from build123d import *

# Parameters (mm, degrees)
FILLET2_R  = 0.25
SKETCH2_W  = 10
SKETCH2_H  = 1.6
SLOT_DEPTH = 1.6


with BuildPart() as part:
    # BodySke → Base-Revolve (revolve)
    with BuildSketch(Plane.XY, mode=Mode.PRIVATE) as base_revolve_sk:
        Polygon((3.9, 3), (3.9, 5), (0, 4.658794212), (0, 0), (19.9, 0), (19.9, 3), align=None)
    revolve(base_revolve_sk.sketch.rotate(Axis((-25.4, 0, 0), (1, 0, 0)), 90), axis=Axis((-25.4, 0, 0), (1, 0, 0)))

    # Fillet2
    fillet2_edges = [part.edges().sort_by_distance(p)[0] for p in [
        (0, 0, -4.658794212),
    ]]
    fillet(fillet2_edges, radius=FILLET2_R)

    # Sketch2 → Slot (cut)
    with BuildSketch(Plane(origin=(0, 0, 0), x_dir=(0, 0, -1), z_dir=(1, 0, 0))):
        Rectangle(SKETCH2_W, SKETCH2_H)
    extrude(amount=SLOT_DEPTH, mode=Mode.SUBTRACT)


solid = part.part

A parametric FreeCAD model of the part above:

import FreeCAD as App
import Part
import Sketcher
from FreeCAD import Vector
Q = App.Units.Quantity


def edges_at(feature, points):
    """Names of the edges that pass closest to the given points."""
    edges = feature.Shape.Edges
    near = lambda p: min(range(len(edges)), key=lambda i: edges[i].distToShape(Part.Vertex(*p))[0])
    return sorted({f"Edge{near(p) + 1}" for p in points})


def add_polygon(sketch, points):
    """Adds a closed chain of lines whose ends are joined by coincident constraints."""
    first, n = sketch.GeometryCount, len(points)
    for a, b in zip(points, points[1:] + points[:1]):
        sketch.addGeometry(Part.LineSegment(App.Vector(*a, 0), App.Vector(*b, 0)), False)
    for i in range(n):
        sketch.addConstraint(Sketcher.Constraint("Coincident", first + i, 2, first + (i + 1) % n, 1))

doc = App.newDocument("Part")
params = doc.addObject("Spreadsheet::Sheet", "Params")
for row, (alias, value) in enumerate([
    ("sketch1_width", "16 mm"),
    ("sketch1_height", "2 mm"),
    ("sketch1_height2", "3 mm"),
    ("sketch1_width2", "19.9 mm"),
    ("revolution_angle", "360 deg"),
    ("fillet_radius", "0.25 mm"),
    ("sketch2_height", "10 mm"),
    ("sketch2_width", "1.6 mm"),
    ("pocket1_length", "1.6 mm"),
], start=1):
    params.set(f"A{row}", alias)
    params.set(f"B{row}", "=" + value)
    params.setAlias(f"B{row}", alias)

body = doc.addObject("PartDesign::Body", "Body")

sketch1 = body.newObject("Sketcher::SketchObject", "Sketch")
sketch1.AttachmentSupport = (doc.getObject("XY_Plane"), [""])
sketch1.MapMode = "FlatFace"
add_polygon(sketch1, [(3.9, 3), (3.9, 5), (0, 4.7), (0, 0), (19.9, 0), (19.9, 3)])
sketch1.addConstraint([
    Sketcher.Constraint("Vertical", 0),
    Sketcher.Constraint("Vertical", 2),
    Sketcher.Constraint("Horizontal", 3),
    Sketcher.Constraint("Vertical", 4),
    Sketcher.Constraint("Horizontal", 5),
    Sketcher.Constraint("Coincident", 2, 2, -1, 1),
    Sketcher.Constraint("DistanceX", 5, 2, 5, 1, 16.0),
    Sketcher.Constraint("DistanceY", 0, 1, 0, 2, 2.0),
    Sketcher.Constraint("DistanceY", 4, 1, 4, 2, 3.0),
    Sketcher.Constraint("Angle", 1, Q("-175 deg")),
    Sketcher.Constraint("DistanceX", 3, 1, 3, 2, 19.9),
])
sketch1.setExpression("Constraints[12]", "Params.sketch1_width")
sketch1.setExpression("Constraints[13]", "Params.sketch1_height")
sketch1.setExpression("Constraints[14]", "Params.sketch1_height2")
sketch1.setExpression("Constraints[16]", "Params.sketch1_width2")
revolution = body.newObject("PartDesign::Revolution", "Revolution")
revolution.Profile = sketch1
revolution.ReferenceAxis = (sketch1, ["H_Axis"])
revolution.setExpression("Angle", "Params.revolution_angle")
doc.recompute()

fillet = body.newObject("PartDesign::Fillet", "Fillet")
fillet.Base = (revolution, edges_at(revolution, [(0, 0, -4.659)]))
fillet.setExpression("Radius", "Params.fillet_radius")

sketch2 = body.newObject("Sketcher::SketchObject", "Sketch001")
sketch2.AttachmentSupport = (doc.getObject("YZ_Plane"), [""])
sketch2.MapMode = "FlatFace"
add_polygon(sketch2, [(0.8, 5), (-0.8, 5), (-0.8, -5), (0.8, -5)])
sketch2.addConstraint([
    Sketcher.Constraint("Horizontal", 0),
    Sketcher.Constraint("Vertical", 1),
    Sketcher.Constraint("Horizontal", 2),
    Sketcher.Constraint("Vertical", 3),
    Sketcher.Constraint("Symmetric", 0, 2, 2, 2, -1, 1),
    Sketcher.Constraint("DistanceY", 1, 2, 1, 1, 10.0),
    Sketcher.Constraint("DistanceX", 0, 2, 0, 1, 1.6),
])
sketch2.setExpression("Constraints[9]", "Params.sketch2_height")
sketch2.setExpression("Constraints[10]", "Params.sketch2_width")
pocket1 = body.newObject("PartDesign::Pocket", "Pocket")
pocket1.Profile = sketch2
pocket1.setExpression("Length", "Params.pocket1_length")
pocket1.Reversed = True

doc.recompute()
